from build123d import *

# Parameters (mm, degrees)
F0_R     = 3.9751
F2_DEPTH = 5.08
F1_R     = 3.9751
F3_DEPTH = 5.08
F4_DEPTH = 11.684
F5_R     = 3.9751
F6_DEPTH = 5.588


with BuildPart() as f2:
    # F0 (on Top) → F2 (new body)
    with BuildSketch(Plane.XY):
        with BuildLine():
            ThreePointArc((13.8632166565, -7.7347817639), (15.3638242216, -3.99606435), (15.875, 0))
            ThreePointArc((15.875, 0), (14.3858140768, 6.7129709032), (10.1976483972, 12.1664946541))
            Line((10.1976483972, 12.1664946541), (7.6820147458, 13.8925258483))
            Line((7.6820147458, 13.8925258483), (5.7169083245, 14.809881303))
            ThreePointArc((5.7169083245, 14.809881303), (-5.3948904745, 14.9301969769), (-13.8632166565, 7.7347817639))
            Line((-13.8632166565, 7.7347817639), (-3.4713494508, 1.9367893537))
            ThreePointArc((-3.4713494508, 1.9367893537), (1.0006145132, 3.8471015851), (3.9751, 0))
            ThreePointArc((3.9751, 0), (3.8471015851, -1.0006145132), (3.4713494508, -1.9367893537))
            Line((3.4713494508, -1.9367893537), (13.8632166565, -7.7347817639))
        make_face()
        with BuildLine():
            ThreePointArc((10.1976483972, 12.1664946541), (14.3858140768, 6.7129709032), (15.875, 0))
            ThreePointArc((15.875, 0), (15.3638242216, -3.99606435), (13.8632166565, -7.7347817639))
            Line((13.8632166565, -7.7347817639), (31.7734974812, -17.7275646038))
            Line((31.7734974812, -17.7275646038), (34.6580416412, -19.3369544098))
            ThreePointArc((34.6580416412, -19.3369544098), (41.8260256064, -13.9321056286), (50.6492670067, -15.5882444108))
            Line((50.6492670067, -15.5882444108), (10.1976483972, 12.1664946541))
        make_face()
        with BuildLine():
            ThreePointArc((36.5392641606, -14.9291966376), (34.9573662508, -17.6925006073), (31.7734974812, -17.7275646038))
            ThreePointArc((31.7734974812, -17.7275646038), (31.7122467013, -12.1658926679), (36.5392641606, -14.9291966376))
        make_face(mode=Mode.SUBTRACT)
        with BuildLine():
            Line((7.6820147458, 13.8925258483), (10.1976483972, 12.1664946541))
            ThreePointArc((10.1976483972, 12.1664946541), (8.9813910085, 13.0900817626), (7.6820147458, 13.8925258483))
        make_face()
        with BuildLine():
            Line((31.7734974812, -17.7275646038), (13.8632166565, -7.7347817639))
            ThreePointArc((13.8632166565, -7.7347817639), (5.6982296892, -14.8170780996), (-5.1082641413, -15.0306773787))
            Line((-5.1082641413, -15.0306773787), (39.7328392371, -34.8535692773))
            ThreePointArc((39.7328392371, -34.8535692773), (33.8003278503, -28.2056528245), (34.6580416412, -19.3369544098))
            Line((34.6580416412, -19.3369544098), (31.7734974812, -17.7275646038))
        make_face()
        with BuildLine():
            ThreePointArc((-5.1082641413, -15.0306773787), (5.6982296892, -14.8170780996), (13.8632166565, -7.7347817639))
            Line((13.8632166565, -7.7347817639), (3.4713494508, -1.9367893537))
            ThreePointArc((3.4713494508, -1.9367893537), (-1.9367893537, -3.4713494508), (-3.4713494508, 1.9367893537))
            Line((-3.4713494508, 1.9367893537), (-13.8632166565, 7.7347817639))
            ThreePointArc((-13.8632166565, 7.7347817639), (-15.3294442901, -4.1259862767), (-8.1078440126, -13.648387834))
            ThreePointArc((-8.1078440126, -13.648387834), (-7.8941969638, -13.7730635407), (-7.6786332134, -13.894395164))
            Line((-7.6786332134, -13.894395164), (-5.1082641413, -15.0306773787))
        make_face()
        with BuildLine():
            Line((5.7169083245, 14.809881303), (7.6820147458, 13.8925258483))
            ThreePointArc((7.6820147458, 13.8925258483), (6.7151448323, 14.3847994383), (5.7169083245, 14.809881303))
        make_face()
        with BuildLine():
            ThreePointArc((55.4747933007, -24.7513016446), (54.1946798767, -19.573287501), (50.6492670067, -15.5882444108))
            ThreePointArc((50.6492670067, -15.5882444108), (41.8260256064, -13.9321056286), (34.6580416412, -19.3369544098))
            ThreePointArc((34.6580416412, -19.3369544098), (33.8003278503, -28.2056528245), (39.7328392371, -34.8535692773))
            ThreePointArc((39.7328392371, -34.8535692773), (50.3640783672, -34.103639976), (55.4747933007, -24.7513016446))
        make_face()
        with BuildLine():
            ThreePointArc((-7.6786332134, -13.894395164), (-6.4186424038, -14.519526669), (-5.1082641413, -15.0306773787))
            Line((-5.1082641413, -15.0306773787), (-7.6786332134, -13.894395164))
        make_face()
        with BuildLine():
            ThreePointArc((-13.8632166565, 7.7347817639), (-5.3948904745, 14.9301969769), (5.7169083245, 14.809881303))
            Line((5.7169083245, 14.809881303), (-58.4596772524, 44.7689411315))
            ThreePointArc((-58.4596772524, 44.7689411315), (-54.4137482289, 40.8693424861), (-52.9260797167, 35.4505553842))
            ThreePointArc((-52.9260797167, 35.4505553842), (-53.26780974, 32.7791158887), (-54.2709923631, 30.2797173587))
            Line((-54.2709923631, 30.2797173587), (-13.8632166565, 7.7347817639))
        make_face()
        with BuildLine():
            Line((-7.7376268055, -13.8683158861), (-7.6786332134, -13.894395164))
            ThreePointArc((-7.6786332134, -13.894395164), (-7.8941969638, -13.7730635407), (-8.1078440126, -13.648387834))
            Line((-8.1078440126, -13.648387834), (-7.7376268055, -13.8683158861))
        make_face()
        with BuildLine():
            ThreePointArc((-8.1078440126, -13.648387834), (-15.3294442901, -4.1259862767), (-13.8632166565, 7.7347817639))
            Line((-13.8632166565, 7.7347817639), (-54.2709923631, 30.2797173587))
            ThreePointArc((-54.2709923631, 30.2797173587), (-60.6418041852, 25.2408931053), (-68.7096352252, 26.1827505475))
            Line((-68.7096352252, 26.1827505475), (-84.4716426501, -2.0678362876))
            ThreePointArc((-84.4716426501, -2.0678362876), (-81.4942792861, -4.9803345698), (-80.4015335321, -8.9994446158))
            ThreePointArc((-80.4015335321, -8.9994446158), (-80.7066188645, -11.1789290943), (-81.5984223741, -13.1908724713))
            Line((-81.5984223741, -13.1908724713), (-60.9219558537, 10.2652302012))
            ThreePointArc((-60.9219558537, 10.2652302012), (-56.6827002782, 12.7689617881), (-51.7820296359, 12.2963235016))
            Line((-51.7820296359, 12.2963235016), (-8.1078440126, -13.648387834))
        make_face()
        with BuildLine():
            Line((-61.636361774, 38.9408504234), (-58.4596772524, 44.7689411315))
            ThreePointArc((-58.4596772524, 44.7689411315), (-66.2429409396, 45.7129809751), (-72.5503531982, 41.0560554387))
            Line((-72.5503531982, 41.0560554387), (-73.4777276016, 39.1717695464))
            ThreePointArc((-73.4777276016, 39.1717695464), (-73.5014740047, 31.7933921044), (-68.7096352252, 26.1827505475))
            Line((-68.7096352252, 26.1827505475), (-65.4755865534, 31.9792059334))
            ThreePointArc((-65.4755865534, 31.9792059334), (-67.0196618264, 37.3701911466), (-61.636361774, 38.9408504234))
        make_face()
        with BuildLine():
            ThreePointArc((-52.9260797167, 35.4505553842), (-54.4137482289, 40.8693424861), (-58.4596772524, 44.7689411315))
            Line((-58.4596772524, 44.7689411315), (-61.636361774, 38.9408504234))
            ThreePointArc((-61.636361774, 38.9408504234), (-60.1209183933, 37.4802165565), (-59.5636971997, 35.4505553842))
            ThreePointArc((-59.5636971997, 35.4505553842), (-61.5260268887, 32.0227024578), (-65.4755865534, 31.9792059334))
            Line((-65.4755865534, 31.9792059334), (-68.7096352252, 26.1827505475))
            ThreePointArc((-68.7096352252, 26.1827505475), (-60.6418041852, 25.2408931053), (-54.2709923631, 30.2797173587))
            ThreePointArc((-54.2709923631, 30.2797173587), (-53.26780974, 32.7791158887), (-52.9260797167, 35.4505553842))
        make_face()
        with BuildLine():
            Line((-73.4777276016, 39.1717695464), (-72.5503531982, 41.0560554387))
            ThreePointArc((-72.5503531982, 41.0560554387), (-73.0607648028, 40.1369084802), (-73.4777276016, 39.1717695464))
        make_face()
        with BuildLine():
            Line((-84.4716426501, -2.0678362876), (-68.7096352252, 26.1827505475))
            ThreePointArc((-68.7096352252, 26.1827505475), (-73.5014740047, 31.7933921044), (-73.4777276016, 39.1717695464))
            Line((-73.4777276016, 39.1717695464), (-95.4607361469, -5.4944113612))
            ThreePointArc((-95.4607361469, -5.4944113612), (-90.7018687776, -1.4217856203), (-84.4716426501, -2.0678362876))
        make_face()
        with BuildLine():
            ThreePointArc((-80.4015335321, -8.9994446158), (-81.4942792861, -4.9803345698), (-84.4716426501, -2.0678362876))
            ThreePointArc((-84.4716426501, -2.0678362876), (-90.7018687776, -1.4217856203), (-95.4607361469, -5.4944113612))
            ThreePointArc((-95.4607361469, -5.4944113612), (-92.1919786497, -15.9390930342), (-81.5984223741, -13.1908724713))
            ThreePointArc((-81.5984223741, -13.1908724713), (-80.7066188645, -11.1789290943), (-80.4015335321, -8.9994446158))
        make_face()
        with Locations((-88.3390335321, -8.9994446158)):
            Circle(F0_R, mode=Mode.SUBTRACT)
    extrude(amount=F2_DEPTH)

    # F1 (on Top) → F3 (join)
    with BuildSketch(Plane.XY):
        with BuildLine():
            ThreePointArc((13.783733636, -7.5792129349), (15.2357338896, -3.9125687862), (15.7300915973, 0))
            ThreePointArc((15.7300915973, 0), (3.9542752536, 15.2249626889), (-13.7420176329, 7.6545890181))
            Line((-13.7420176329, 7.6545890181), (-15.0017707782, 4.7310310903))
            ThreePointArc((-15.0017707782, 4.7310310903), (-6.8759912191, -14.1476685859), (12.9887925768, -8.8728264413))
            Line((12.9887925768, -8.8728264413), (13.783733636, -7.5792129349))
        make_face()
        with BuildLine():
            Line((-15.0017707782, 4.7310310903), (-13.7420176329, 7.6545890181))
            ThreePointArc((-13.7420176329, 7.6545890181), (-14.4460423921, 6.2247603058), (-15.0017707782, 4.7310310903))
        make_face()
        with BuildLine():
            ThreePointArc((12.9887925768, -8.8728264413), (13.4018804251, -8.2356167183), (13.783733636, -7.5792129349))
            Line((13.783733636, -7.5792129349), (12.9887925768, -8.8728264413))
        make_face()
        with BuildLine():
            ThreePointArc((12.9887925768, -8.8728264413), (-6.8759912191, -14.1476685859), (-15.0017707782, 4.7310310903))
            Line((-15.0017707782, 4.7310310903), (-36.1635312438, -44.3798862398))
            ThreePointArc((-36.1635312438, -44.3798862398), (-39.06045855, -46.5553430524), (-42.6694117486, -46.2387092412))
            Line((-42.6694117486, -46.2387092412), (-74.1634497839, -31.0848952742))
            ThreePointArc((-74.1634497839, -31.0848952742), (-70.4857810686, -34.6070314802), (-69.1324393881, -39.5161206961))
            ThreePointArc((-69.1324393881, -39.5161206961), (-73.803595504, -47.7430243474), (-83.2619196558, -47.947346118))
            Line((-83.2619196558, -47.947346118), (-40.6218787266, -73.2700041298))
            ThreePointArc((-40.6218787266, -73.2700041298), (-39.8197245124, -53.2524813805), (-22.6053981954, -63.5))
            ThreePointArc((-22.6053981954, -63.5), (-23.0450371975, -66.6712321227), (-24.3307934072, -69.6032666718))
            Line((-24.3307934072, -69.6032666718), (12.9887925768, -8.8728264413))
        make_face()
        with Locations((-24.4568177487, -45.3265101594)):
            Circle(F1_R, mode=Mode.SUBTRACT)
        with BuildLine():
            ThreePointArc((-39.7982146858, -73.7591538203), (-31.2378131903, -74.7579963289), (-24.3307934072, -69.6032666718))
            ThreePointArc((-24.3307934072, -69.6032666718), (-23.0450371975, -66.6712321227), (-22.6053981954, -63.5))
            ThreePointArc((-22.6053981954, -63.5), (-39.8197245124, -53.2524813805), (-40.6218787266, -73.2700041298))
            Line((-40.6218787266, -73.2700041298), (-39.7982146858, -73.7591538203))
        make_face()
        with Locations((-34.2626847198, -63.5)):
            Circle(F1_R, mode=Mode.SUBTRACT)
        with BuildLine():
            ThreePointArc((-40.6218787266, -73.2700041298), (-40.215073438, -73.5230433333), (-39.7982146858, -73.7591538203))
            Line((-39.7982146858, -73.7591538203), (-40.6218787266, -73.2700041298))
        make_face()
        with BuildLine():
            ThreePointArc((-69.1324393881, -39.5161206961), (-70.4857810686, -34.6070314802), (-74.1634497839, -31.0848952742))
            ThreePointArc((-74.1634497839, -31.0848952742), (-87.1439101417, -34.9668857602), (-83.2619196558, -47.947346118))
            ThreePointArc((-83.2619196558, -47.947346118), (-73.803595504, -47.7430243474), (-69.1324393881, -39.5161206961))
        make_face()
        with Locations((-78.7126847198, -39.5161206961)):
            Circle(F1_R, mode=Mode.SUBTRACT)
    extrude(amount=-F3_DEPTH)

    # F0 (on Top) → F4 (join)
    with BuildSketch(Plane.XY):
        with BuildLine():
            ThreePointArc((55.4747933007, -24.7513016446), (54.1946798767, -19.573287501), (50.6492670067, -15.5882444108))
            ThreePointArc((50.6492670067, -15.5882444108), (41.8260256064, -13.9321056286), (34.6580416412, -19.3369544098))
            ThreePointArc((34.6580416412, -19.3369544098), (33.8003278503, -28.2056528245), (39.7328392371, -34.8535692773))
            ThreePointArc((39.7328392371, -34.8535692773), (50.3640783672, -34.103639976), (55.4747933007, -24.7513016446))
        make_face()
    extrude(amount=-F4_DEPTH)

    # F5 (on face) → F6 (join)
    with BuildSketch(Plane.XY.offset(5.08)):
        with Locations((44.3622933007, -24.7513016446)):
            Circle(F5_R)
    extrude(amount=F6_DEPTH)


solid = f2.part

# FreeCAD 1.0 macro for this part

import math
import FreeCAD as App
import Part
import Sketcher
Q = App.Units.Quantity

doc = App.newDocument("Part")
body = doc.addObject("PartDesign::Body", "Body")

# Sketch on XY plane
sketch1 = body.newObject("Sketcher::SketchObject", "Sketch")
sketch1.AttachmentSupport = (doc.getObject("XY_Plane"), [""])
sketch1.MapMode = "FlatFace"
sketch1.addGeometry([
    Part.LineSegment(App.Vector(-5.11, -15.03, 0), App.Vector(39.73, -34.85, 0)),  # 0
    Part.ArcOfCircle(Part.Circle(App.Vector(44.36, -24.75, 0), App.Vector(0, 0, 1), 11.11), math.radians(-115), math.radians(0)),  # 1
    Part.ArcOfCircle(Part.Circle(App.Vector(44.36, -24.75, 0), App.Vector(0, 0, 1), 11.11), math.radians(0), math.radians(56)),  # 2
    Part.LineSegment(App.Vector(50.65, -15.59, 0), App.Vector(10.2, 12.17, 0)),  # 3
    Part.ArcOfCircle(Part.Circle(App.Vector(0, 0, 0), App.Vector(0, 0, 1), 15.88), math.radians(50.03), math.radians(61.06)),  # 4
    Part.ArcOfCircle(Part.Circle(App.Vector(0, 0, 0), App.Vector(0, 0, 1), 15.88), math.radians(61.06), math.radians(68.89)),  # 5
    Part.LineSegment(App.Vector(5.72, 14.81, 0), App.Vector(-58.46, 44.77, 0)),  # 6
    Part.ArcOfCircle(Part.Circle(App.Vector(-63.54, 35.45, 0), App.Vector(0, 0, 1), 10.61), math.radians(61), math.radians(148)),  # 7
    Part.ArcOfCircle(Part.Circle(App.Vector(-63.54, 35.45, 0), App.Vector(0, 0, 1), 10.61), math.radians(148.12), math.radians(159.47)),  # 8
    Part.LineSegment(App.Vector(-73.48, 39.17, 0), App.Vector(-95.46, -5.49, 0)),  # 9
    Part.ArcOfCircle(Part.Circle(App.Vector(-88.34, -9, 0), App.Vector(0, 0, 1), 7.94), math.radians(154), math.radians(328)),  # 10
    Part.LineSegment(App.Vector(-81.6, -13.19, 0), App.Vector(-60.92, 10.27, 0)),  # 11
    Part.ArcOfCircle(Part.Circle(App.Vector(-54.96, 5.01, 0), App.Vector(0, 0, 1), 7.95), math.radians(66), math.radians(139)),  # 12
    Part.LineSegment(App.Vector(-51.78, 12.3, 0), App.Vector(-8.11, -13.65, 0)),  # 13
    Part.LineSegment(App.Vector(-8.11, -13.65, 0), App.Vector(-7.74, -13.87, 0)),  # 14
    Part.LineSegment(App.Vector(-7.74, -13.87, 0), App.Vector(-7.68, -13.89, 0)),  # 15
    Part.ArcOfCircle(Part.Circle(App.Vector(0, 0, 0), App.Vector(0, 0, 1), 15.87), math.radians(-118.93), math.radians(-108.77)),  # 16
    Part.Circle(App.Vector(-88.34, -9, 0), App.Vector(0, 0, 1), 3.98),  # 17
    Part.ArcOfCircle(Part.Circle(App.Vector(33.33, -14.93, 0), App.Vector(0, 0, 1), 3.2), math.radians(-119), math.radians(0)),  # 18
    Part.ArcOfCircle(Part.Circle(App.Vector(33.33, -14.93, 0), App.Vector(0, 0, 1), 3.2), math.radians(0), math.radians(241)),  # 19
    Part.ArcOfCircle(Part.Circle(App.Vector(0, 0, 0), App.Vector(0, 0, 1), 3.98), math.radians(-29), math.radians(0)),  # 20
    Part.ArcOfCircle(Part.Circle(App.Vector(0, 0, 0), App.Vector(0, 0, 1), 3.98), math.radians(0), math.radians(331)),  # 21
    Part.ArcOfCircle(Part.Circle(App.Vector(-63.54, 35.45, 0), App.Vector(0, 0, 1), 3.98), math.radians(0), math.radians(61)),  # 22
    Part.ArcOfCircle(Part.Circle(App.Vector(-63.54, 35.45, 0), App.Vector(0, 0, 1), 3.98), math.radians(-119), math.radians(0)),  # 23
    Part.ArcOfCircle(Part.Circle(App.Vector(-63.54, 35.45, 0), App.Vector(0, 0, 1), 3.98), math.radians(61), math.radians(241)),  # 24
], False)
sketch1.addConstraint([
    Sketcher.Constraint("Coincident", 0, 2, 1, 1),
    Sketcher.Constraint("Tangent", 1, 2, 2, 1),
    Sketcher.Constraint("Tangent", 2, 2, 3, 1),
    Sketcher.Constraint("Coincident", 3, 2, 4, 1),
    Sketcher.Constraint("Tangent", 4, 2, 5, 1),
    Sketcher.Constraint("Coincident", 5, 2, 6, 1),
    Sketcher.Constraint("Coincident", 6, 2, 7, 1),
    Sketcher.Constraint("Tangent", 7, 2, 8, 1),
    Sketcher.Constraint("Coincident", 8, 2, 9, 1),
    Sketcher.Constraint("Tangent", 9, 2, 10, 1),
    Sketcher.Constraint("Coincident", 10, 2, 11, 1),
    Sketcher.Constraint("Tangent", 11, 2, 12, 2),
    Sketcher.Constraint("Coincident", 12, 1, 13, 1),
    Sketcher.Constraint("Coincident", 13, 2, 14, 1),
    Sketcher.Constraint("Coincident", 14, 2, 15, 1),
    Sketcher.Constraint("Coincident", 15, 2, 16, 1),
    Sketcher.Constraint("Coincident", 16, 2, 0, 1),
    Sketcher.Constraint("Tangent", 18, 1, 19, 2),
    Sketcher.Constraint("Coincident", 19, 1, 18, 2),
    Sketcher.Constraint("Tangent", 20, 1, 21, 2),
    Sketcher.Constraint("Coincident", 21, 1, 20, 2),
    Sketcher.Constraint("Tangent", 22, 1, 23, 2),
    Sketcher.Constraint("Tangent", 23, 1, 24, 2),
    Sketcher.Constraint("Tangent", 24, 1, 22, 2),
    Sketcher.Constraint("Coincident", 4, 3, -1, 1),
    Sketcher.Constraint("Coincident", 16, 3, -1, 1),
    Sketcher.Constraint("Coincident", 20, 3, -1, 1),
    Sketcher.Constraint("Coincident", 17, 3, 10, 3),
    Sketcher.Constraint("Coincident", 22, 3, 7, 3),
    Sketcher.Constraint("Equal", 1, 2),
    Sketcher.Constraint("Equal", 4, 5),
    Sketcher.Constraint("Equal", 7, 8),
    Sketcher.Constraint("Equal", 5, 16),
    Sketcher.Constraint("Equal", 17, 20),
    Sketcher.Constraint("Equal", 21, 22),
    Sketcher.Constraint("PointOnObject", 21, 1, -1),
    Sketcher.Constraint("Parallel", 13, 14),
    Sketcher.Constraint("Parallel", 0, 15),
    Sketcher.Constraint("Horizontal", 2, 3, 1, 2),
    Sketcher.Constraint("Horizontal", 18, 3, 19, 1),
    Sketcher.Constraint("Horizontal", 24, 3, 22, 1),
    Sketcher.Constraint("Diameter", 17, Q("0.313 in")),
    Sketcher.Constraint("Radius", 1, Q("0.4375 in")),
    Sketcher.Constraint("Radius", 4, Q("0.625 in")),
    Sketcher.Constraint("Radius", 10, Q("0.3125 in")),
    Sketcher.Constraint("Radius", 12, Q("0.313 in")),
    Sketcher.Constraint("DistanceY", 10, 3, 7, 3, Q("1.75 in")),
    Sketcher.Constraint("Radius", 7, Q("10.612717 mm")),
    Sketcher.Constraint("Radius", 18, Q("3.204458 mm")),
    Sketcher.Constraint("Distance", 15, Q("0.064501 mm")),
    Sketcher.Constraint("DistanceY", 1, 3, -1, 1, Q("24.751302 mm")),
    Sketcher.Constraint("DistanceY", 7, 3, 7, 2, Q("5.6055 mm")),
    Sketcher.Constraint("Distance", 3, Q("49.057711 mm")),
    Sketcher.Constraint("Distance", 6, Q("70.824991 mm")),
    Sketcher.Constraint("Distance", 9, Q("49.782732 mm")),
    Sketcher.Constraint("DistanceX", 12, 3, -1, 1, Q("54.958061 mm")),
    Sketcher.Constraint("DistanceY", -1, 1, 12, 3, Q("5.008079 mm")),
    Sketcher.Constraint("DistanceX", -1, 1, 0, 2, Q("39.732839 mm")),
    Sketcher.Constraint("DistanceY", 0, 2, -1, 1, Q("34.853569 mm")),
    Sketcher.Constraint("DistanceX", -1, 1, 5, 2, Q("5.716908 mm")),
    Sketcher.Constraint("DistanceY", -1, 1, 6, 2, Q("44.768941 mm")),
    Sketcher.Constraint("DistanceY", -1, 1, 8, 2, Q("39.17177 mm")),
    Sketcher.Constraint("DistanceY", 9, 2, -1, 1, Q("5.494411 mm")),
    Sketcher.Constraint("DistanceY", -1, 1, 11, 2, Q("10.26523 mm")),
    Sketcher.Constraint("DistanceX", 12, 1, -1, 1, Q("51.78203 mm")),
    Sketcher.Constraint("DistanceX", -1, 1, 20, 1, Q("3.471349 mm")),
    Sketcher.Constraint("DistanceX", 24, 1, -1, 1, Q("61.636362 mm")),
    Sketcher.Constraint("DistanceX", 18, 3, 2, 2, Q("17.314461 mm")),
    Sketcher.Constraint("DistanceY", 3, 2, 4, 2, Q("1.726031 mm")),
    Sketcher.Constraint("DistanceY", 14, 2, 13, 2, Q("0.219928 mm")),
    Sketcher.Constraint("DistanceX", 15, 2, 16, 2, Q("2.570369 mm")),
    Sketcher.Constraint("DistanceY", 16, 2, 14, 2, Q("1.162361 mm")),
    Sketcher.Constraint("DistanceX", 18, 1, 18, 3, Q("1.561309 mm")),
    Sketcher.Constraint("DistanceX", 23, 1, 7, 3, Q("1.936789 mm")),
    Sketcher.Constraint("DistanceY", 18, 3, -1, 1, Q("14.929197 mm")),
])
pad1 = body.newObject("PartDesign::Pad", "Pad")
pad1.Profile = sketch1
pad1.Length = Q("0.2 in")

# Sketch on XY plane
sketch2 = body.newObject("Sketcher::SketchObject", "Sketch001")
sketch2.AttachmentSupport = (doc.getObject("XY_Plane"), [""])
sketch2.MapMode = "FlatFace"
sketch2.addGeometry([
    Part.ArcOfCircle(Part.Circle(App.Vector(0, 0, 0), App.Vector(0, 0, 1), 15.7), math.radians(-29), math.radians(0)),  # 0
    Part.ArcOfCircle(Part.Circle(App.Vector(0, 0, 0), App.Vector(0, 0, 1), 15.7), math.radians(0), math.radians(151)),  # 1
    Part.ArcOfCircle(Part.Circle(App.Vector(0, 0, 0), App.Vector(0, 0, 1), 15.7), math.radians(150.88), math.radians(162.5)),  # 2
    Part.LineSegment(App.Vector(-15, 4.7, 0), App.Vector(-36.2, -44.4, 0)),  # 3
    Part.ArcOfCircle(Part.Circle(App.Vector(-40.5, -41.7, 0), App.Vector(0, 0, 1), 5.1), math.radians(-116), math.radians(-32)),  # 4
    Part.LineSegment(App.Vector(-42.7, -46.2, 0), App.Vector(-74.2, -31.1, 0)),  # 5
    Part.ArcOfCircle(Part.Circle(App.Vector(-78.7, -39.5, 0), App.Vector(0, 0, 1), 9.6), math.radians(62), math.radians(242)),  # 6
    Part.LineSegment(App.Vector(-83.3, -47.9, 0), App.Vector(-40.6, -73.3, 0)),  # 7
    Part.ArcOfCircle(Part.Circle(App.Vector(-34.3, -63.5, 0), App.Vector(0, 0, 1), 11.7), math.radians(-123.06), math.radians(-118.35)),  # 8
    Part.ArcOfCircle(Part.Circle(App.Vector(-34.3, -63.5, 0), App.Vector(0, 0, 1), 11.7), math.radians(-118), math.radians(-32)),  # 9
    Part.LineSegment(App.Vector(-24.3, -69.6, 0), App.Vector(13, -8.9, 0)),  # 10
    Part.ArcOfCircle(Part.Circle(App.Vector(0, 0, 0), App.Vector(0, 0, 1), 15.7), math.radians(-34.34), math.radians(-28.8)),  # 11
    Part.Circle(App.Vector(-34.3, -63.5, 0), App.Vector(0, 0, 1), 4),  # 12
    Part.Circle(App.Vector(-78.7, -39.5, 0), App.Vector(0, 0, 1), 4),  # 13
    Part.Circle(App.Vector(-24.5, -45.3, 0), App.Vector(0, 0, 1), 4),  # 14
], False)
sketch2.addConstraint([
    Sketcher.Constraint("Tangent", 0, 2, 1, 1),
    Sketcher.Constraint("Tangent", 1, 2, 2, 1),
    Sketcher.Constraint("Coincident", 2, 2, 3, 1),
    Sketcher.Constraint("Coincident", 3, 2, 4, 2),
    Sketcher.Constraint("Coincident", 4, 1, 5, 1),
    Sketcher.Constraint("Coincident", 5, 2, 6, 1),
    Sketcher.Constraint("Coincident", 6, 2, 7, 1),
    Sketcher.Constraint("Coincident", 7, 2, 8, 1),
    Sketcher.Constraint("Tangent", 8, 2, 9, 1),
    Sketcher.Constraint("Tangent", 9, 2, 10, 1),
    Sketcher.Constraint("Coincident", 10, 2, 11, 1),
    Sketcher.Constraint("Tangent", 11, 2, 0, 1),
    Sketcher.Constraint("Coincident", 0, 3, -1, 1),
    Sketcher.Constraint("Coincident", 2, 3, -1, 1),
    Sketcher.Constraint("Coincident", 12, 3, 8, 3),
    Sketcher.Constraint("Coincident", 13, 3, 6, 3),
    Sketcher.Constraint("Equal", 8, 9),
    Sketcher.Constraint("Equal", 2, 11),
    Sketcher.Constraint("Equal", 12, 13),
    Sketcher.Constraint("Equal", 13, 14),
    Sketcher.Constraint("PointOnObject", 0, 2, -1),
    Sketcher.Constraint("Diameter", 12, Q("0.313 in")),
    Sketcher.Constraint("DistanceY", 8, 3, -1, 1, Q("2.5 in")),
    Sketcher.Constraint("DistanceX", 6, 3, 8, 3, Q("1.75 in")),
    Sketcher.Constraint("Radius", 0, Q("15.730092 mm")),
    Sketcher.Constraint("Radius", 4, Q("5.063945 mm")),
    Sketcher.Constraint("Radius", 6, Q("9.580245 mm")),
    Sketcher.Constraint("Radius", 8, Q("11.657286 mm")),
    Sketcher.Constraint("DistanceX", 4, 3, 3, 2, Q("4.2881 mm")),
    Sketcher.Constraint("DistanceY", 4, 1, 14, 3, Q("0.912199 mm")),
    Sketcher.Constraint("DistanceX", 10, 2, 0, 2, Q("2.741299 mm")),
    Sketcher.Constraint("Distance", 7, Q("49.59244 mm")),
    Sketcher.Constraint("DistanceX", 4, 3, -1, 1, Q("40.451631 mm")),
    Sketcher.Constraint("DistanceY", 4, 3, -1, 1, Q("41.686239 mm")),
    Sketcher.Constraint("DistanceY", 6, 3, -1, 1, Q("39.516121 mm")),
    Sketcher.Constraint("DistanceY", 14, 3, -1, 1, Q("45.32651 mm")),
    Sketcher.Constraint("DistanceY", -1, 1, 1, 2, Q("7.654589 mm")),
    Sketcher.Constraint("DistanceX", 2, 2, -1, 1, Q("15.001771 mm")),
    Sketcher.Constraint("DistanceX", 5, 2, -1, 1, Q("74.16345 mm")),
    Sketcher.Constraint("DistanceX", 6, 2, -1, 1, Q("83.26192 mm")),
    Sketcher.Constraint("DistanceX", 7, 2, -1, 1, Q("40.621879 mm")),
    Sketcher.Constraint("DistanceX", 14, 3, 0, 2, Q("40.186909 mm")),
    Sketcher.Constraint("DistanceY", 8, 2, 7, 2, Q("0.48915 mm")),
    Sketcher.Constraint("DistanceX", 10, 2, 11, 2, Q("0.794941 mm")),
])
pad2 = body.newObject("PartDesign::Pad", "Pad001")
pad2.Profile = sketch2
pad2.Length = Q("0.2 in")
pad2.Reversed = True

# Sketch on XY plane
sketch3 = body.newObject("Sketcher::SketchObject", "Sketch002")
sketch3.AttachmentSupport = (doc.getObject("XY_Plane"), [""])
sketch3.MapMode = "FlatFace"
sketch3.addGeometry([
    Part.ArcOfCircle(Part.Circle(App.Vector(44, -25, 0), App.Vector(0, 0, 1), 11), math.radians(0), math.radians(56)),
    Part.ArcOfCircle(Part.Circle(App.Vector(44, -25, 0), App.Vector(0, 0, 1), 11), math.radians(56), math.radians(151)),
    Part.ArcOfCircle(Part.Circle(App.Vector(44, -25, 0), App.Vector(0, 0, 1), 11), math.radians(151), math.radians(245)),
    Part.ArcOfCircle(Part.Circle(App.Vector(44, -25, 0), App.Vector(0, 0, 1), 11), math.radians(-115), math.radians(0)),
], False)
sketch3.addConstraint([
    Sketcher.Constraint("Tangent", 0, 2, 1, 1),
    Sketcher.Constraint("Tangent", 1, 2, 2, 1),
    Sketcher.Constraint("Tangent", 2, 2, 3, 1),
    Sketcher.Constraint("Tangent", 3, 2, 0, 1),
    Sketcher.Constraint("Equal", 0, 1),
    Sketcher.Constraint("Horizontal", 2, 3, 3, 2),
    Sketcher.Constraint("Radius", 0, Q("0.4375 in")),
    Sketcher.Constraint("DistanceY", 0, 3, -1, 1, Q("24.751302 mm")),
    Sketcher.Constraint("DistanceX", -1, 1, 1, 2, Q("34.658042 mm")),
    Sketcher.Constraint("DistanceX", -1, 1, 2, 2, Q("39.732839 mm")),
    Sketcher.Constraint("DistanceY", 2, 2, -1, 1, Q("34.853569 mm")),
    Sketcher.Constraint("DistanceY", 1, 2, 0, 2, Q("3.74871 mm")),
])
pad3 = body.newObject("PartDesign::Pad", "Pad002")
pad3.Profile = sketch3
pad3.Length = Q("0.46 in")
pad3.Reversed = True

# Sketch on XY plane
sketch4 = body.newObject("Sketcher::SketchObject", "Sketch003")
sketch4.AttachmentSupport = (doc.getObject("XY_Plane"), [""])
sketch4.MapMode = "FlatFace"
sketch4.AttachmentOffset = App.Placement(App.Vector(0, 0, 0.2 * 25.4), App.Rotation())
sketch4.addGeometry(Part.Circle(App.Vector(44.4, -24.8, 0), App.Vector(0, 0, 1), 4), False)
sketch4.addConstraint([
    Sketcher.Constraint("Diameter", 0, Q("0.313 in")),
    Sketcher.Constraint("DistanceY", 0, 3, -1, 1, Q("24.751302 mm")),
    Sketcher.Constraint("DistanceX", -1, 1, 0, 3, Q("44.362293 mm")),
])
pad4 = body.newObject("PartDesign::Pad", "Pad003")
pad4.Profile = sketch4
pad4.Length = Q("0.22 in")

doc.recompute()
